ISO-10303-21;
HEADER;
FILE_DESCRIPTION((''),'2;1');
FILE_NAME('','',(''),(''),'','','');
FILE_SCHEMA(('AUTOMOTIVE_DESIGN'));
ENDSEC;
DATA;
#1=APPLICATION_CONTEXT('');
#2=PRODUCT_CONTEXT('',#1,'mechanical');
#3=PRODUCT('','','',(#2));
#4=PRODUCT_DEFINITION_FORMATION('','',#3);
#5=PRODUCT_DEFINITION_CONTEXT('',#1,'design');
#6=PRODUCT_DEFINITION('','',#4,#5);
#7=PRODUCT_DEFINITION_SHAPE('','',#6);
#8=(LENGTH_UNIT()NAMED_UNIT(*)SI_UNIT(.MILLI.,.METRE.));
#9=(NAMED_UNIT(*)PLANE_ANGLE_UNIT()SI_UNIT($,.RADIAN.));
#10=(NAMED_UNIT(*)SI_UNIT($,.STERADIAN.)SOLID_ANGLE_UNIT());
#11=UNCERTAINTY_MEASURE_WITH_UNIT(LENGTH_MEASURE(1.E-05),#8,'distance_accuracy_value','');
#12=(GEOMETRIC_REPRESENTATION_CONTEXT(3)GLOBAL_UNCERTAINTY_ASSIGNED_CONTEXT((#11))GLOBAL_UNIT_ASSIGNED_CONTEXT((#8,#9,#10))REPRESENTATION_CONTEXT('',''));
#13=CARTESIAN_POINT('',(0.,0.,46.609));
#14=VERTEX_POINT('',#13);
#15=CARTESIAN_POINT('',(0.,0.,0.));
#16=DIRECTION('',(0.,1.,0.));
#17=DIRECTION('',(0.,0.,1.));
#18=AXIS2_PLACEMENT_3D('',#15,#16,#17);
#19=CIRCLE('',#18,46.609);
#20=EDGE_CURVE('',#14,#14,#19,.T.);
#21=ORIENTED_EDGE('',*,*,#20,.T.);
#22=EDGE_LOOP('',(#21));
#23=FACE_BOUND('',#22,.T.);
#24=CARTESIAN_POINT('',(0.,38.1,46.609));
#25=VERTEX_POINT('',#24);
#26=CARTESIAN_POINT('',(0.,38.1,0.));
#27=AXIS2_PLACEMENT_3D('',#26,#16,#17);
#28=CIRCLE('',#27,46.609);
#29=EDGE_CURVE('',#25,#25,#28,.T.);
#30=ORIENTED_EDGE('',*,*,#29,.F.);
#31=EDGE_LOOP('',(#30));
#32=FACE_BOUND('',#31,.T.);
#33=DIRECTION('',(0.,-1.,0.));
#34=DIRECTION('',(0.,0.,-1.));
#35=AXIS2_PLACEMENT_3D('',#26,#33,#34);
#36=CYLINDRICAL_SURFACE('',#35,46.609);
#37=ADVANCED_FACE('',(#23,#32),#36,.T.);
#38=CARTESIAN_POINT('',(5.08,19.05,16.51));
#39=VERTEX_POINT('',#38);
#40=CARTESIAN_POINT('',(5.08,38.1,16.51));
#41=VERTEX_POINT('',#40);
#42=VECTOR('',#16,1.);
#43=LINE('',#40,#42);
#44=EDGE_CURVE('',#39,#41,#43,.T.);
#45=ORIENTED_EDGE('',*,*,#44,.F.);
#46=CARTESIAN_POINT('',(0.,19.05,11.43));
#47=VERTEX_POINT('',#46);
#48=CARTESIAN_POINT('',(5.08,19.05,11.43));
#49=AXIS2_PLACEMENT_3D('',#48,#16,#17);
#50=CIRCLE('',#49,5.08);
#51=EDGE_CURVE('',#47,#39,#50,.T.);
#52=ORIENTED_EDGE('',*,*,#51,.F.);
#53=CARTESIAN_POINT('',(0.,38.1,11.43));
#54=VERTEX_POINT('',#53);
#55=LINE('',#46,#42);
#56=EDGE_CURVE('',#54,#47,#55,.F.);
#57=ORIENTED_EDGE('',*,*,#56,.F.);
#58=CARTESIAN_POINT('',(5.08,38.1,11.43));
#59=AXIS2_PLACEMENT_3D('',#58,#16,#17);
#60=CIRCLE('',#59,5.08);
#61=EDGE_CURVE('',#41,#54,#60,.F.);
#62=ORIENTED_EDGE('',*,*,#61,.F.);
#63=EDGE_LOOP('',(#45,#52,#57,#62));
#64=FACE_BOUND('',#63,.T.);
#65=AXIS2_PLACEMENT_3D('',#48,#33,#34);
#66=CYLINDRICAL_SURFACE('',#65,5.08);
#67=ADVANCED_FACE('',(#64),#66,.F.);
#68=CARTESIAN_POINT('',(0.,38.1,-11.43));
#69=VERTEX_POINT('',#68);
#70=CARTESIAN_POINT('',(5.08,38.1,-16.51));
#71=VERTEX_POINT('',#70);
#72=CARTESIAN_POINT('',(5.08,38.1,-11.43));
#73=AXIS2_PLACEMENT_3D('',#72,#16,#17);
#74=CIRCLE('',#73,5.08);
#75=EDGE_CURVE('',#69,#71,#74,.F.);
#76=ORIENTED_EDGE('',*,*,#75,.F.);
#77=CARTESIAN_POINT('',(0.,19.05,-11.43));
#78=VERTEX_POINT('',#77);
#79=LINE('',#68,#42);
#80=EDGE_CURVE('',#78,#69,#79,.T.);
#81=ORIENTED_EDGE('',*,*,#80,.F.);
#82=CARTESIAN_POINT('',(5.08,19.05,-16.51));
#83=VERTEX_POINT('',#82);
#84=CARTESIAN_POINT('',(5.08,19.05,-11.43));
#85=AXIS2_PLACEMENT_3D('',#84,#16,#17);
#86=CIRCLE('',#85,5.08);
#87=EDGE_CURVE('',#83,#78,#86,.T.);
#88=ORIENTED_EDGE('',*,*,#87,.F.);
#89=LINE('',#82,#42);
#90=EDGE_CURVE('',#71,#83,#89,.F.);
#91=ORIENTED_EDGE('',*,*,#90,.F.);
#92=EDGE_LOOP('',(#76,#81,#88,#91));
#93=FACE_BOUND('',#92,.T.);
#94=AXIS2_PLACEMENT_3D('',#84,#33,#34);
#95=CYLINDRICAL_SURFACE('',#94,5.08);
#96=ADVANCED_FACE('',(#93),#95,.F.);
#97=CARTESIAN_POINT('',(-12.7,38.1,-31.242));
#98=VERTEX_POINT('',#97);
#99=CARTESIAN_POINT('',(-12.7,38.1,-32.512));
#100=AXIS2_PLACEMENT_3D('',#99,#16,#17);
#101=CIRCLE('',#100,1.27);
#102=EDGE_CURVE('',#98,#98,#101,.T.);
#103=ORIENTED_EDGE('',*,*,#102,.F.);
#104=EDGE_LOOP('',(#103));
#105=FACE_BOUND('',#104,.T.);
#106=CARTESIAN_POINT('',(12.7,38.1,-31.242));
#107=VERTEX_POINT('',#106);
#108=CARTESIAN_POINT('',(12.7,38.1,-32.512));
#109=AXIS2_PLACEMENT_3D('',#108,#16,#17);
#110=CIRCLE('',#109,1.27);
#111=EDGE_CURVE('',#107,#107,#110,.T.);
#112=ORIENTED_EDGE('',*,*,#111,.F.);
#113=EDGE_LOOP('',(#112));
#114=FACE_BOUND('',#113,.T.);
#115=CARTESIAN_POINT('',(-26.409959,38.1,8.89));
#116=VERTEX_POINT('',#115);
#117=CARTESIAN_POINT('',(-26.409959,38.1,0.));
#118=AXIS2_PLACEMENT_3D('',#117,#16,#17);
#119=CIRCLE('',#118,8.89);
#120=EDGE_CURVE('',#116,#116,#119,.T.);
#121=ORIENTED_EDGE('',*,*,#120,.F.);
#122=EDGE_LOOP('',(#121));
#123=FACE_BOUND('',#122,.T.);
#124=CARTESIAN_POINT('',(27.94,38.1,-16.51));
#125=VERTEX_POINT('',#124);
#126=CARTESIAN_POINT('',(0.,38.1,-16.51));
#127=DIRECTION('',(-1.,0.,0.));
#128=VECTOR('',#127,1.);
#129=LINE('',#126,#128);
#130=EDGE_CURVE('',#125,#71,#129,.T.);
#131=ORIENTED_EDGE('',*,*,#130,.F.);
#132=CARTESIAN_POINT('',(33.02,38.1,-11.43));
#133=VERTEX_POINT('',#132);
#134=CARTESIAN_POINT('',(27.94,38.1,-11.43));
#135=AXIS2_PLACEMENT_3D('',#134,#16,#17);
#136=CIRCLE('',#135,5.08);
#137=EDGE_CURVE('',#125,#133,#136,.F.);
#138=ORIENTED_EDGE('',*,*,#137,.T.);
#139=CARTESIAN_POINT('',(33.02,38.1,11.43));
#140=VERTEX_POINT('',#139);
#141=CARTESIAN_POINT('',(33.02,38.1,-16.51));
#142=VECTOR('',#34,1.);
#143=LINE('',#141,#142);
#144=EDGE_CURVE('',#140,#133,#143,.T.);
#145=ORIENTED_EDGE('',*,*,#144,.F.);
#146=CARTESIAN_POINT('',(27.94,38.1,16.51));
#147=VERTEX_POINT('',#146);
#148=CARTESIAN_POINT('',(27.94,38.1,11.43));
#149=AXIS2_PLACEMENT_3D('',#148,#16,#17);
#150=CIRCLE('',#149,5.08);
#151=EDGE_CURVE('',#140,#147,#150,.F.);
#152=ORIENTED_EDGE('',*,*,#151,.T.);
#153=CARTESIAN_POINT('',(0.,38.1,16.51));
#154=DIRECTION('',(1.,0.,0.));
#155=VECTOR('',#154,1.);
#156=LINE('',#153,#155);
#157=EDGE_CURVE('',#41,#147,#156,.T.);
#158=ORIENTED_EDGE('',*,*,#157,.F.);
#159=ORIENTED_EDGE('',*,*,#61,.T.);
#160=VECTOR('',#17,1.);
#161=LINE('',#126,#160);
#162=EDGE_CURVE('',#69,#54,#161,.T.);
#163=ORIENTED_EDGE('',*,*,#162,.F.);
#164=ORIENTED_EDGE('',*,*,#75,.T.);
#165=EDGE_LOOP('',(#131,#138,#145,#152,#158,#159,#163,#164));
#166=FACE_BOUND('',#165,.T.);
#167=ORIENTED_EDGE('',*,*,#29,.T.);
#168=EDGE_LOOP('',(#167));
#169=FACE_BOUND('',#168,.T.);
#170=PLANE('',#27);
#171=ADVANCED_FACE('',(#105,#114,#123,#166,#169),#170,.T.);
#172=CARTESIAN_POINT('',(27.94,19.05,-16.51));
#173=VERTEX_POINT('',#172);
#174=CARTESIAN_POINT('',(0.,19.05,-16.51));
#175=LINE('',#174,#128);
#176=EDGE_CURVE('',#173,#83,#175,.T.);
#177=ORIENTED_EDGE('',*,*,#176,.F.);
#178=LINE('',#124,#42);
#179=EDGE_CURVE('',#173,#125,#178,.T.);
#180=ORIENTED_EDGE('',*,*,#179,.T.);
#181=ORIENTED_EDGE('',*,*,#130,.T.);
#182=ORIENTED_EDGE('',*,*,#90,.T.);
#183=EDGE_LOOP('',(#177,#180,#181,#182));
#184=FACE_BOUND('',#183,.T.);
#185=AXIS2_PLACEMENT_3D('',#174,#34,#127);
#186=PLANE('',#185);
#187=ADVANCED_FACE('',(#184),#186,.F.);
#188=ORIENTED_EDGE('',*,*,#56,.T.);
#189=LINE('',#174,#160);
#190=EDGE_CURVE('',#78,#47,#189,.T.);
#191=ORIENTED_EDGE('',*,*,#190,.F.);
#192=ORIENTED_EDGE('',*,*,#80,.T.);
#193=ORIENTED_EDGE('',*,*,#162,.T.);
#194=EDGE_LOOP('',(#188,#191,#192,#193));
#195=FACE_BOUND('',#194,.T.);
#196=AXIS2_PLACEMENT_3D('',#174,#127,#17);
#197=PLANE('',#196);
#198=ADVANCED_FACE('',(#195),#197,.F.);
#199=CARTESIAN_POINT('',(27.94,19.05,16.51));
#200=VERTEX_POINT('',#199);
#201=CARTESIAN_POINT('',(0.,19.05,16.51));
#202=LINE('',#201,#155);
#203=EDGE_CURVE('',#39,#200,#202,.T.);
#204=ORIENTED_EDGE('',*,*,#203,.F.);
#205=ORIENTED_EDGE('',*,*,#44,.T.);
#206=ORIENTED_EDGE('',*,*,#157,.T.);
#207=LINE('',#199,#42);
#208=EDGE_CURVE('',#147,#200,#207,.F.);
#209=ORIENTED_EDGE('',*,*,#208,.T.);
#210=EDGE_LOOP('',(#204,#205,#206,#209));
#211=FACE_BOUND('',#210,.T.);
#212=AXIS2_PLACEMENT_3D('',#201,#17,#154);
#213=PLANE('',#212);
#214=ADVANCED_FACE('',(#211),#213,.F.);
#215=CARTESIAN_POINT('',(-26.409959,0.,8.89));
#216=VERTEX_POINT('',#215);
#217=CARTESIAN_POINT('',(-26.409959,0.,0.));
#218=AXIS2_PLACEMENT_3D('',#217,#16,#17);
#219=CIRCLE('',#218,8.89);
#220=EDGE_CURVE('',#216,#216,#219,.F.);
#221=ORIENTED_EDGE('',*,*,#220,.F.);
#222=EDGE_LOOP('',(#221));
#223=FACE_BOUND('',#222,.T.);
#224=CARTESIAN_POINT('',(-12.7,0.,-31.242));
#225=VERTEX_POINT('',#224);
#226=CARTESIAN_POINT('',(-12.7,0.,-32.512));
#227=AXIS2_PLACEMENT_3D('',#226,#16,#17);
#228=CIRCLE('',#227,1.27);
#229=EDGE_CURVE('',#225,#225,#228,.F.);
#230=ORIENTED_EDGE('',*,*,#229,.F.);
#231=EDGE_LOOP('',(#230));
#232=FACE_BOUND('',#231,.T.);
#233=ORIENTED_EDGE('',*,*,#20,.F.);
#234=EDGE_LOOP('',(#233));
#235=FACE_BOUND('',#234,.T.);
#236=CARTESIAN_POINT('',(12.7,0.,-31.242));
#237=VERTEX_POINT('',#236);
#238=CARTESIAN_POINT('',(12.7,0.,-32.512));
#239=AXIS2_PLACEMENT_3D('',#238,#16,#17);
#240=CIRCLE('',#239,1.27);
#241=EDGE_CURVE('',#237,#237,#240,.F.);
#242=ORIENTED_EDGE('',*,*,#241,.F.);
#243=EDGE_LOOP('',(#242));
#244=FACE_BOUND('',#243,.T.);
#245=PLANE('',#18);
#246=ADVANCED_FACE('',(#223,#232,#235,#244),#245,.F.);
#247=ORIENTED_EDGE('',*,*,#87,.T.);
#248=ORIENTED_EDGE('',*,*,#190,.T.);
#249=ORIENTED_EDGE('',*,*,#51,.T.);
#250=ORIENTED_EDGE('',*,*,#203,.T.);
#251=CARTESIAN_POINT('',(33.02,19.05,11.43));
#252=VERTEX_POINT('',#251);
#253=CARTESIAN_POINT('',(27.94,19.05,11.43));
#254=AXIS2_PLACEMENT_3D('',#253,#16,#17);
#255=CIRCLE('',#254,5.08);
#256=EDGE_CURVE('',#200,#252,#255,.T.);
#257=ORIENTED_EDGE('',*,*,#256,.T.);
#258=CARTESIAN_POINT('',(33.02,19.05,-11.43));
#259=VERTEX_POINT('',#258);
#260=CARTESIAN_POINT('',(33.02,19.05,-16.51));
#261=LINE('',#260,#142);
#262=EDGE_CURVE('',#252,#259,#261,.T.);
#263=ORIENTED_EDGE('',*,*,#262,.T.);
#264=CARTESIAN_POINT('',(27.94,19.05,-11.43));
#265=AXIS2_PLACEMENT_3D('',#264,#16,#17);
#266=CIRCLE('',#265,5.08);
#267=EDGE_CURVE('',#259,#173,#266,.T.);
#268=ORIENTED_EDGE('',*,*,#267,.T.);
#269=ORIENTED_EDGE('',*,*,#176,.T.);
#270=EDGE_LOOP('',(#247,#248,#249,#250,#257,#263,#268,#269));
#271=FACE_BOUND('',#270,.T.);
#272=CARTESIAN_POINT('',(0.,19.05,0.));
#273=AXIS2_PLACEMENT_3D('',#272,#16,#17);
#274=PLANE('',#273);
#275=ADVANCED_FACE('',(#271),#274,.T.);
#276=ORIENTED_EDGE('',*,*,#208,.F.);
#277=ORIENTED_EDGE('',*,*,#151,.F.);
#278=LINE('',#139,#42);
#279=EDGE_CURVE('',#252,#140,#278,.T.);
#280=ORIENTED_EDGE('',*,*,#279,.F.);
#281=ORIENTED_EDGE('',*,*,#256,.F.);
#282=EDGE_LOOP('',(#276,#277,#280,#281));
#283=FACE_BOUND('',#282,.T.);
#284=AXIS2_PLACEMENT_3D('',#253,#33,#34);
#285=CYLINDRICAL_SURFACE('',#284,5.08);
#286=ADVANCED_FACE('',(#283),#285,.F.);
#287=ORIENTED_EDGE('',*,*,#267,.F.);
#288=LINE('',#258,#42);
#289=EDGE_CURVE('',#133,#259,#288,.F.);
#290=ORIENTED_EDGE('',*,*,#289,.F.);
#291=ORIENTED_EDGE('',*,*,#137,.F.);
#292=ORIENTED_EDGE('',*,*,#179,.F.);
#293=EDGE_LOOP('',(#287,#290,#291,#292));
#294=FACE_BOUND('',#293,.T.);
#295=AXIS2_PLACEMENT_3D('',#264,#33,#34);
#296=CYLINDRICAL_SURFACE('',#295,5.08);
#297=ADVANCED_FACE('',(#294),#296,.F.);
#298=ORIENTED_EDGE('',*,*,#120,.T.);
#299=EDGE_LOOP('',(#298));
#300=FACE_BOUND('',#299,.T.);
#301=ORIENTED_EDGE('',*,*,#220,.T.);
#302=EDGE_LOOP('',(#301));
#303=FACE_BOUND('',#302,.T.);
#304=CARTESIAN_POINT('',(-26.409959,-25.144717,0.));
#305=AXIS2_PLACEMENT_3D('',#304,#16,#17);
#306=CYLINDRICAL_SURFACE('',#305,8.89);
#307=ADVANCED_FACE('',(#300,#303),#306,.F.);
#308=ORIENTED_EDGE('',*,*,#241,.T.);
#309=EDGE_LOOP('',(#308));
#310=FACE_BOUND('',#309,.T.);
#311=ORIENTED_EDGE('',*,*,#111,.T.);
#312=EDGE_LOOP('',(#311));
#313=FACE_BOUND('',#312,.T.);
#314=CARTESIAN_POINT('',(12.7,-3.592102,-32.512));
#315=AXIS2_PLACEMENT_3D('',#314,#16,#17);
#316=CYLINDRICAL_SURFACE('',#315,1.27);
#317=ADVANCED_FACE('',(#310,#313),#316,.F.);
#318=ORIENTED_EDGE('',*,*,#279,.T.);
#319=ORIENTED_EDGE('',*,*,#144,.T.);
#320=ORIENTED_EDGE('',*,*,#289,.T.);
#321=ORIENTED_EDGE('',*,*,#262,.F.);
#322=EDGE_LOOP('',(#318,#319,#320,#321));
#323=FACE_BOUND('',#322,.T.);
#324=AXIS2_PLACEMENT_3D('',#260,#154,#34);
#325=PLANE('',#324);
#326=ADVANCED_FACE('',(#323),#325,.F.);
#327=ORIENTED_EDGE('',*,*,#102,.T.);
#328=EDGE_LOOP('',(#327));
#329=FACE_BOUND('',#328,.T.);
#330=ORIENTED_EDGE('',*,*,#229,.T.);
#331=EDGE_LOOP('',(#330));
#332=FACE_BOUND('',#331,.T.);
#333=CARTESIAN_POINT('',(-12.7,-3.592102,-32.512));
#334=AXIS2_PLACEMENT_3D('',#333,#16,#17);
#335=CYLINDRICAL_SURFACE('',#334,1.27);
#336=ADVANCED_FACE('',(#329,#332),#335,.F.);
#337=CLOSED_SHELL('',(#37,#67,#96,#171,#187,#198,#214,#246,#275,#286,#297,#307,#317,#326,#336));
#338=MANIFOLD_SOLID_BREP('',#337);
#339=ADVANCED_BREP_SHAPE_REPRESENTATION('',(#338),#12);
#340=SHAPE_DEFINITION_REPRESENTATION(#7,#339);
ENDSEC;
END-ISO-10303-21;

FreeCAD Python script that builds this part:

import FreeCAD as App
import Part
import Sketcher

V = App.Vector
Q = App.Units.Quantity


def edges_at(feature, points):
    """Names of the edges that pass closest to the given points."""
    edges = feature.Shape.Edges
    near = lambda p: min(range(len(edges)), key=lambda i: edges[i].distToShape(Part.Vertex(*p))[0])
    return sorted({f"Edge{near(p) + 1}" for p in points})

doc = App.newDocument("Part")
body = doc.addObject("PartDesign::Body", "Body")

# Sketch on XZ plane
sketch1 = doc.addObject("Sketcher::SketchObject", "Sketch")
body.addObject(sketch1)
sketch1.AttachmentSupport = (doc.XZ_Plane, [""])
sketch1.MapMode = "FlatFace"
sketch1.addGeometry(Part.Circle(V(0, 0, 0), V(0, 0, 1), 47), False)
sketch1.addConstraint([
    Sketcher.Constraint("Coincident", 0, 3, -1, 1),
    Sketcher.Constraint("Diameter", 0, Q("3.67 in")),
])
pad1 = doc.addObject("PartDesign::Pad", "Pad")
body.addObject(pad1)
pad1.Profile = sketch1
pad1.Length = Q("1.5 in")
pad1.Reversed = True

# Sketch on XZ plane
sketch2 = doc.addObject("Sketcher::SketchObject", "Sketch001")
body.addObject(sketch2)
sketch2.AttachmentSupport = (doc.XZ_Plane, [""])
sketch2.MapMode = "FlatFace"
sketch2.AttachmentOffset = App.Placement(V(0, 0, -1.5 * 25.4), App.Rotation())
sketch2.addGeometry([
    Part.Circle(V(12.7, -32.5, 0), V(0, 0, 1), 1.3),
    Part.Circle(V(-12.7, -32.5, 0), V(0, 0, 1), 1.3),
], False)
sketch2.addConstraint([
    Sketcher.Constraint("Equal", 0, 1),
    Sketcher.Constraint("Symmetric", 0, 3, 1, 3, -2),
    Sketcher.Constraint("Diameter", 0, Q("0.1 in")),
    Sketcher.Constraint("DistanceX", 1, 3, 0, 3, Q("1 in")),
    Sketcher.Constraint("DistanceY", 0, 3, -1, 1, Q("1.28 in")),
])
pocket1 = doc.addObject("PartDesign::Pocket", "Pocket")
body.addObject(pocket1)
pocket1.Profile = sketch2
pocket1.Length = Q("1.5 in")
pocket1.Reversed = True

# Sketch on XZ plane
sketch3 = doc.addObject("Sketcher::SketchObject", "Sketch002")
body.addObject(sketch3)
sketch3.AttachmentSupport = (doc.XZ_Plane, [""])
sketch3.MapMode = "FlatFace"
sketch3.AttachmentOffset = App.Placement(V(0, 0, -1.5 * 25.4), App.Rotation())
sketch3.addGeometry(Part.Circle(V(-26, 0, 0), V(0, 0, 1), 9), False)
sketch3.addConstraint([
    Sketcher.Constraint("PointOnObject", 0, 3, -1),
    Sketcher.Constraint("Diameter", 0, Q("0.7 in")),
    Sketcher.Constraint("DistanceX", 0, 3, -1, 1, 26.409959),
])
pocket2 = doc.addObject("PartDesign::Pocket", "Pocket001")
body.addObject(pocket2)
pocket2.Profile = sketch3
pocket2.Length = Q("1.5 in")
pocket2.Reversed = True

# Sketch on XZ plane
sketch4 = doc.addObject("Sketcher::SketchObject", "Sketch003")
body.addObject(sketch4)
sketch4.AttachmentSupport = (doc.XZ_Plane, [""])
sketch4.MapMode = "FlatFace"
sketch4.AttachmentOffset = App.Placement(V(0, 0, -1.5 * 25.4), App.Rotation())
sketch4.addGeometry([
    Part.LineSegment(V(0, -17, 0), V(0, 17, 0)),
    Part.LineSegment(V(0, 17, 0), V(33, 17, 0)),
    Part.LineSegment(V(33, 17, 0), V(33, -17, 0)),
    Part.LineSegment(V(33, -17, 0), V(0, -17, 0)),
], False)
sketch4.addConstraint([
    Sketcher.Constraint("Coincident", 0, 2, 1, 1),
    Sketcher.Constraint("Coincident", 1, 2, 2, 1),
    Sketcher.Constraint("Coincident", 2, 2, 3, 1),
    Sketcher.Constraint("Coincident", 3, 2, 0, 1),
    Sketcher.Constraint("Vertical", 0),
    Sketcher.Constraint("Horizontal", 1),
    Sketcher.Constraint("Vertical", 2),
    Sketcher.Constraint("Horizontal", 3),
    Sketcher.Constraint("Symmetric", 0, 2, 3, 2, -1, 1),
    Sketcher.Constraint("Equal", 3, 0),
    Sketcher.Constraint("DistanceX", 1, 1, 1, 2, Q("1.3 in")),
])
pocket3 = doc.addObject("PartDesign::Pocket", "Pocket002")
body.addObject(pocket3)
pocket3.Profile = sketch4
pocket3.Length = Q("0.75 in")
pocket3.Reversed = True
doc.recompute()

fillet = doc.addObject("PartDesign::Fillet", "Fillet")
body.addObject(fillet)
fillet.Base = (pocket3, edges_at(pocket3, [
    (0, 28.575, 16.51),
    (0, 28.575, -16.51),
    (33.02, 28.575, -16.51),
    (33.02, 28.575, 16.51),
]))
fillet.Radius = Q("0.2 in")

doc.recompute()
